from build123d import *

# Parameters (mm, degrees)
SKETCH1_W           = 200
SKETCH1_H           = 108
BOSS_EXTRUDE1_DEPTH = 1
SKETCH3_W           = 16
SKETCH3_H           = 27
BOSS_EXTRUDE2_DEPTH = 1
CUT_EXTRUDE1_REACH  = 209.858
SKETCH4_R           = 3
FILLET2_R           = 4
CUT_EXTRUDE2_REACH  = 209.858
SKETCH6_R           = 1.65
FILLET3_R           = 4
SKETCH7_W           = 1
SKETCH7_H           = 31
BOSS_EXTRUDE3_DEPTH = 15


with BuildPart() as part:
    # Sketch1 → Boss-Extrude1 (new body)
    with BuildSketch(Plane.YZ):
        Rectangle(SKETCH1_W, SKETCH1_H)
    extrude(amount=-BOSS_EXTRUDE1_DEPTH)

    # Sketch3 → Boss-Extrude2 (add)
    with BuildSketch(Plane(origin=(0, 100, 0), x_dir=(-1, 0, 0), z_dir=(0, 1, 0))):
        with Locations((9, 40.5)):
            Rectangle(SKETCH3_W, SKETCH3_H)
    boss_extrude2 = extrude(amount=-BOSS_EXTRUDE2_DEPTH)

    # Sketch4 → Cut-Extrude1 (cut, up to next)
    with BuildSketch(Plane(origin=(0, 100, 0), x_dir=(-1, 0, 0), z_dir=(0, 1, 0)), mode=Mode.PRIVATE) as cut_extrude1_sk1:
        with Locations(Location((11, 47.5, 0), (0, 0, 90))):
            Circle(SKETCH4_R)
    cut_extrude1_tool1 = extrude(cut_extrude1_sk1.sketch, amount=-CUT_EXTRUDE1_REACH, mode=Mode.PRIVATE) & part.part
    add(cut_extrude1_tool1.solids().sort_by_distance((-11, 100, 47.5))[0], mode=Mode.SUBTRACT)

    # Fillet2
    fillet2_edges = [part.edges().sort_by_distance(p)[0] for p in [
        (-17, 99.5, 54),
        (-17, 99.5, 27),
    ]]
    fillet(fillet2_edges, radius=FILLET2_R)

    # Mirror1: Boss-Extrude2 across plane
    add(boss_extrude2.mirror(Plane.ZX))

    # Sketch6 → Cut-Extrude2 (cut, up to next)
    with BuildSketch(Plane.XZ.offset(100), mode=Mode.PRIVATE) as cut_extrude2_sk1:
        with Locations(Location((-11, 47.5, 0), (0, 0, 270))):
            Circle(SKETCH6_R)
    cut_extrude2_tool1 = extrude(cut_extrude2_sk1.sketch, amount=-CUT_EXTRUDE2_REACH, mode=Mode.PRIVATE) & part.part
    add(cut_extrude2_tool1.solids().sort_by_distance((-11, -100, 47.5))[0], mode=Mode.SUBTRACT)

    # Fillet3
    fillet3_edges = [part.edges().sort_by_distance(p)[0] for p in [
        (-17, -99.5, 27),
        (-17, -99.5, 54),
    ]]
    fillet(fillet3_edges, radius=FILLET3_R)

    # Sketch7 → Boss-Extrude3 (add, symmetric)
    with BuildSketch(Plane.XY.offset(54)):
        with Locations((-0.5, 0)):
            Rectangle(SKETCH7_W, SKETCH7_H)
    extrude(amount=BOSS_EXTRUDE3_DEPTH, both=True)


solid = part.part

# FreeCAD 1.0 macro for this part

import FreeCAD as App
import Part
import Sketcher

V = App.Vector
Q = App.Units.Quantity


def edges_at(feature, points):
    """Names of the edges that pass closest to the given points."""
    edges = feature.Shape.Edges
    near = lambda p: min(range(len(edges)), key=lambda i: edges[i].distToShape(Part.Vertex(*p))[0])
    return sorted({f"Edge{near(p) + 1}" for p in points})


def add_polygon(sketch, points):
    """Adds a closed chain of lines whose ends are joined by coincident constraints."""
    first, n = sketch.GeometryCount, len(points)
    for a, b in zip(points, points[1:] + points[:1]):
        sketch.addGeometry(Part.LineSegment(App.Vector(*a, 0), App.Vector(*b, 0)), False)
    for i in range(n):
        sketch.addConstraint(Sketcher.Constraint("Coincident", first + i, 2, first + (i + 1) % n, 1))

doc = App.newDocument("Part")
body = doc.addObject("PartDesign::Body", "Body")

sketch1 = doc.addObject("Sketcher::SketchObject", "Sketch")
body.addObject(sketch1)
sketch1.AttachmentSupport = (doc.YZ_Plane, [""])
sketch1.MapMode = "FlatFace"
add_polygon(sketch1, [(-100, 54), (-100, -54), (100, -54), (100, 54)])
sketch1.addConstraint(Sketcher.Constraint("Vertical", 0))
sketch1.addConstraint(Sketcher.Constraint("Horizontal", 1))
sketch1.addConstraint(Sketcher.Constraint("Vertical", 2))
sketch1.addConstraint(Sketcher.Constraint("Horizontal", 3))
sketch1.addConstraint(Sketcher.Constraint("Symmetric", 0, 2, 2, 2, -1, 1))
sketch1.addConstraint(Sketcher.Constraint("DistanceX", 1, 1, 1, 2, Q("200 mm")))
sketch1.addConstraint(Sketcher.Constraint("DistanceY", 0, 2, 0, 1, Q("108 mm")))
pad1 = doc.addObject("PartDesign::Pad", "Pad")
body.addObject(pad1)
pad1.Profile = sketch1
pad1.Length = 1
pad1.Reversed = True

sketch2 = doc.addObject("Sketcher::SketchObject", "Sketch001")
body.addObject(sketch2)
sketch2.AttachmentSupport = (doc.XZ_Plane, [""])
sketch2.MapMode = "FlatFace"
sketch2.AttachmentOffset = App.Placement(V(0, 0, -100), App.Rotation())
add_polygon(sketch2, [(-1, 54), (-1, 27), (-17, 27), (-17, 54)])
sketch2.addConstraint(Sketcher.Constraint("Vertical", 0))
sketch2.addConstraint(Sketcher.Constraint("Horizontal", 1))
sketch2.addConstraint(Sketcher.Constraint("Vertical", 2))
sketch2.addConstraint(Sketcher.Constraint("Horizontal", 3))
sketch2.addConstraint(Sketcher.Constraint("DistanceX", 1, 2, 1, 1, Q("16 mm")))
sketch2.addConstraint(Sketcher.Constraint("DistanceY", 0, 2, 0, 1, Q("27 mm")))
sketch2.addConstraint(Sketcher.Constraint("DistanceX", 0, 2, -1, 1, Q("1 mm")))
sketch2.addConstraint(Sketcher.Constraint("DistanceY", -1, 1, 0, 2, Q("27 mm")))
pad2 = doc.addObject("PartDesign::Pad", "Pad001")
body.addObject(pad2)
pad2.Profile = sketch2
pad2.Length = 1

sketch3 = doc.addObject("Sketcher::SketchObject", "Sketch002")
body.addObject(sketch3)
sketch3.AttachmentSupport = (doc.XZ_Plane, [""])
sketch3.MapMode = "FlatFace"
sketch3.AttachmentOffset = App.Placement(V(0, 0, -100), App.Rotation())
sketch3.addGeometry(Part.Circle(V(-11, 47.5, 0), V(0, 0, 1), 3), False)
sketch3.addConstraint(Sketcher.Constraint("Diameter", 0, Q("6 mm")))
sketch3.addConstraint(Sketcher.Constraint("DistanceX", 0, 3, -1, 1, Q("11 mm")))
sketch3.addConstraint(Sketcher.Constraint("DistanceY", -1, 1, 0, 3, Q("47.5 mm")))
pocket1 = doc.addObject("PartDesign::Pocket", "Pocket")
body.addObject(pocket1)
pocket1.Profile = sketch3
pocket1.Type = "UpToFirst"
pocket1.Reversed = True
doc.recompute()

fillet = doc.addObject("PartDesign::Fillet", "Fillet")
body.addObject(fillet)
fillet.Base = (pocket1, edges_at(pocket1, [(-17, 99.5, 54), (-17, 99.5, 27)]))
fillet.Radius = 4
doc.recompute()

mirrored = doc.addObject("PartDesign::Mirrored", "Mirrored")
body.addObject(mirrored)
mirrored.Originals = [pad2]
mirrored.MirrorPlane = (doc.XZ_Plane, [""])
body.Tip = mirrored

sketch4 = doc.addObject("Sketcher::SketchObject", "Sketch003")
body.addObject(sketch4)
sketch4.AttachmentSupport = (doc.XZ_Plane, [""])
sketch4.MapMode = "FlatFace"
sketch4.AttachmentOffset = App.Placement(V(0, 0, 100), App.Rotation())
sketch4.addGeometry(Part.Circle(V(-11, 47.5, 0), V(0, 0, 1), 1.6), False)
sketch4.addConstraint(Sketcher.Constraint("Diameter", 0, Q("3.3 mm")))
sketch4.addConstraint(Sketcher.Constraint("DistanceX", 0, 3, -1, 1, Q("11 mm")))
sketch4.addConstraint(Sketcher.Constraint("DistanceY", -1, 1, 0, 3, Q("47.5 mm")))
pocket2 = doc.addObject("PartDesign::Pocket", "Pocket001")
body.addObject(pocket2)
pocket2.Profile = sketch4
pocket2.Type = "UpToFirst"
doc.recompute()

fillet2 = doc.addObject("PartDesign::Fillet", "Fillet001")
body.addObject(fillet2)
fillet2.Base = (pocket2, edges_at(pocket2, [(-17, -99.5, 27), (-17, -99.5, 54)]))
fillet2.Radius = 4

sketch5 = doc.addObject("Sketcher::SketchObject", "Sketch004")
body.addObject(sketch5)
sketch5.AttachmentSupport = (doc.XY_Plane, [""])
sketch5.MapMode = "FlatFace"
sketch5.AttachmentOffset = App.Placement(V(0, 0, 54), App.Rotation())
add_polygon(sketch5, [(-1, 15.5), (-1, -15.5), (0, -15.5), (0, 15.5)])
sketch5.addConstraint(Sketcher.Constraint("Vertical", 0))
sketch5.addConstraint(Sketcher.Constraint("Horizontal", 1))
sketch5.addConstraint(Sketcher.Constraint("Vertical", 2))
sketch5.addConstraint(Sketcher.Constraint("Horizontal", 3))
sketch5.addConstraint(Sketcher.Constraint("Symmetric", 1, 2, 2, 2, -1, 1))
sketch5.addConstraint(Sketcher.Constraint("DistanceX", 1, 1, 1, 2, Q("1 mm")))
sketch5.addConstraint(Sketcher.Constraint("DistanceY", 0, 2, 0, 1, Q("31 mm")))
pad3 = doc.addObject("PartDesign::Pad", "Pad002")
body.addObject(pad3)
pad3.Profile = sketch5
pad3.Length = 30
pad3.Midplane = True

doc.recompute()
